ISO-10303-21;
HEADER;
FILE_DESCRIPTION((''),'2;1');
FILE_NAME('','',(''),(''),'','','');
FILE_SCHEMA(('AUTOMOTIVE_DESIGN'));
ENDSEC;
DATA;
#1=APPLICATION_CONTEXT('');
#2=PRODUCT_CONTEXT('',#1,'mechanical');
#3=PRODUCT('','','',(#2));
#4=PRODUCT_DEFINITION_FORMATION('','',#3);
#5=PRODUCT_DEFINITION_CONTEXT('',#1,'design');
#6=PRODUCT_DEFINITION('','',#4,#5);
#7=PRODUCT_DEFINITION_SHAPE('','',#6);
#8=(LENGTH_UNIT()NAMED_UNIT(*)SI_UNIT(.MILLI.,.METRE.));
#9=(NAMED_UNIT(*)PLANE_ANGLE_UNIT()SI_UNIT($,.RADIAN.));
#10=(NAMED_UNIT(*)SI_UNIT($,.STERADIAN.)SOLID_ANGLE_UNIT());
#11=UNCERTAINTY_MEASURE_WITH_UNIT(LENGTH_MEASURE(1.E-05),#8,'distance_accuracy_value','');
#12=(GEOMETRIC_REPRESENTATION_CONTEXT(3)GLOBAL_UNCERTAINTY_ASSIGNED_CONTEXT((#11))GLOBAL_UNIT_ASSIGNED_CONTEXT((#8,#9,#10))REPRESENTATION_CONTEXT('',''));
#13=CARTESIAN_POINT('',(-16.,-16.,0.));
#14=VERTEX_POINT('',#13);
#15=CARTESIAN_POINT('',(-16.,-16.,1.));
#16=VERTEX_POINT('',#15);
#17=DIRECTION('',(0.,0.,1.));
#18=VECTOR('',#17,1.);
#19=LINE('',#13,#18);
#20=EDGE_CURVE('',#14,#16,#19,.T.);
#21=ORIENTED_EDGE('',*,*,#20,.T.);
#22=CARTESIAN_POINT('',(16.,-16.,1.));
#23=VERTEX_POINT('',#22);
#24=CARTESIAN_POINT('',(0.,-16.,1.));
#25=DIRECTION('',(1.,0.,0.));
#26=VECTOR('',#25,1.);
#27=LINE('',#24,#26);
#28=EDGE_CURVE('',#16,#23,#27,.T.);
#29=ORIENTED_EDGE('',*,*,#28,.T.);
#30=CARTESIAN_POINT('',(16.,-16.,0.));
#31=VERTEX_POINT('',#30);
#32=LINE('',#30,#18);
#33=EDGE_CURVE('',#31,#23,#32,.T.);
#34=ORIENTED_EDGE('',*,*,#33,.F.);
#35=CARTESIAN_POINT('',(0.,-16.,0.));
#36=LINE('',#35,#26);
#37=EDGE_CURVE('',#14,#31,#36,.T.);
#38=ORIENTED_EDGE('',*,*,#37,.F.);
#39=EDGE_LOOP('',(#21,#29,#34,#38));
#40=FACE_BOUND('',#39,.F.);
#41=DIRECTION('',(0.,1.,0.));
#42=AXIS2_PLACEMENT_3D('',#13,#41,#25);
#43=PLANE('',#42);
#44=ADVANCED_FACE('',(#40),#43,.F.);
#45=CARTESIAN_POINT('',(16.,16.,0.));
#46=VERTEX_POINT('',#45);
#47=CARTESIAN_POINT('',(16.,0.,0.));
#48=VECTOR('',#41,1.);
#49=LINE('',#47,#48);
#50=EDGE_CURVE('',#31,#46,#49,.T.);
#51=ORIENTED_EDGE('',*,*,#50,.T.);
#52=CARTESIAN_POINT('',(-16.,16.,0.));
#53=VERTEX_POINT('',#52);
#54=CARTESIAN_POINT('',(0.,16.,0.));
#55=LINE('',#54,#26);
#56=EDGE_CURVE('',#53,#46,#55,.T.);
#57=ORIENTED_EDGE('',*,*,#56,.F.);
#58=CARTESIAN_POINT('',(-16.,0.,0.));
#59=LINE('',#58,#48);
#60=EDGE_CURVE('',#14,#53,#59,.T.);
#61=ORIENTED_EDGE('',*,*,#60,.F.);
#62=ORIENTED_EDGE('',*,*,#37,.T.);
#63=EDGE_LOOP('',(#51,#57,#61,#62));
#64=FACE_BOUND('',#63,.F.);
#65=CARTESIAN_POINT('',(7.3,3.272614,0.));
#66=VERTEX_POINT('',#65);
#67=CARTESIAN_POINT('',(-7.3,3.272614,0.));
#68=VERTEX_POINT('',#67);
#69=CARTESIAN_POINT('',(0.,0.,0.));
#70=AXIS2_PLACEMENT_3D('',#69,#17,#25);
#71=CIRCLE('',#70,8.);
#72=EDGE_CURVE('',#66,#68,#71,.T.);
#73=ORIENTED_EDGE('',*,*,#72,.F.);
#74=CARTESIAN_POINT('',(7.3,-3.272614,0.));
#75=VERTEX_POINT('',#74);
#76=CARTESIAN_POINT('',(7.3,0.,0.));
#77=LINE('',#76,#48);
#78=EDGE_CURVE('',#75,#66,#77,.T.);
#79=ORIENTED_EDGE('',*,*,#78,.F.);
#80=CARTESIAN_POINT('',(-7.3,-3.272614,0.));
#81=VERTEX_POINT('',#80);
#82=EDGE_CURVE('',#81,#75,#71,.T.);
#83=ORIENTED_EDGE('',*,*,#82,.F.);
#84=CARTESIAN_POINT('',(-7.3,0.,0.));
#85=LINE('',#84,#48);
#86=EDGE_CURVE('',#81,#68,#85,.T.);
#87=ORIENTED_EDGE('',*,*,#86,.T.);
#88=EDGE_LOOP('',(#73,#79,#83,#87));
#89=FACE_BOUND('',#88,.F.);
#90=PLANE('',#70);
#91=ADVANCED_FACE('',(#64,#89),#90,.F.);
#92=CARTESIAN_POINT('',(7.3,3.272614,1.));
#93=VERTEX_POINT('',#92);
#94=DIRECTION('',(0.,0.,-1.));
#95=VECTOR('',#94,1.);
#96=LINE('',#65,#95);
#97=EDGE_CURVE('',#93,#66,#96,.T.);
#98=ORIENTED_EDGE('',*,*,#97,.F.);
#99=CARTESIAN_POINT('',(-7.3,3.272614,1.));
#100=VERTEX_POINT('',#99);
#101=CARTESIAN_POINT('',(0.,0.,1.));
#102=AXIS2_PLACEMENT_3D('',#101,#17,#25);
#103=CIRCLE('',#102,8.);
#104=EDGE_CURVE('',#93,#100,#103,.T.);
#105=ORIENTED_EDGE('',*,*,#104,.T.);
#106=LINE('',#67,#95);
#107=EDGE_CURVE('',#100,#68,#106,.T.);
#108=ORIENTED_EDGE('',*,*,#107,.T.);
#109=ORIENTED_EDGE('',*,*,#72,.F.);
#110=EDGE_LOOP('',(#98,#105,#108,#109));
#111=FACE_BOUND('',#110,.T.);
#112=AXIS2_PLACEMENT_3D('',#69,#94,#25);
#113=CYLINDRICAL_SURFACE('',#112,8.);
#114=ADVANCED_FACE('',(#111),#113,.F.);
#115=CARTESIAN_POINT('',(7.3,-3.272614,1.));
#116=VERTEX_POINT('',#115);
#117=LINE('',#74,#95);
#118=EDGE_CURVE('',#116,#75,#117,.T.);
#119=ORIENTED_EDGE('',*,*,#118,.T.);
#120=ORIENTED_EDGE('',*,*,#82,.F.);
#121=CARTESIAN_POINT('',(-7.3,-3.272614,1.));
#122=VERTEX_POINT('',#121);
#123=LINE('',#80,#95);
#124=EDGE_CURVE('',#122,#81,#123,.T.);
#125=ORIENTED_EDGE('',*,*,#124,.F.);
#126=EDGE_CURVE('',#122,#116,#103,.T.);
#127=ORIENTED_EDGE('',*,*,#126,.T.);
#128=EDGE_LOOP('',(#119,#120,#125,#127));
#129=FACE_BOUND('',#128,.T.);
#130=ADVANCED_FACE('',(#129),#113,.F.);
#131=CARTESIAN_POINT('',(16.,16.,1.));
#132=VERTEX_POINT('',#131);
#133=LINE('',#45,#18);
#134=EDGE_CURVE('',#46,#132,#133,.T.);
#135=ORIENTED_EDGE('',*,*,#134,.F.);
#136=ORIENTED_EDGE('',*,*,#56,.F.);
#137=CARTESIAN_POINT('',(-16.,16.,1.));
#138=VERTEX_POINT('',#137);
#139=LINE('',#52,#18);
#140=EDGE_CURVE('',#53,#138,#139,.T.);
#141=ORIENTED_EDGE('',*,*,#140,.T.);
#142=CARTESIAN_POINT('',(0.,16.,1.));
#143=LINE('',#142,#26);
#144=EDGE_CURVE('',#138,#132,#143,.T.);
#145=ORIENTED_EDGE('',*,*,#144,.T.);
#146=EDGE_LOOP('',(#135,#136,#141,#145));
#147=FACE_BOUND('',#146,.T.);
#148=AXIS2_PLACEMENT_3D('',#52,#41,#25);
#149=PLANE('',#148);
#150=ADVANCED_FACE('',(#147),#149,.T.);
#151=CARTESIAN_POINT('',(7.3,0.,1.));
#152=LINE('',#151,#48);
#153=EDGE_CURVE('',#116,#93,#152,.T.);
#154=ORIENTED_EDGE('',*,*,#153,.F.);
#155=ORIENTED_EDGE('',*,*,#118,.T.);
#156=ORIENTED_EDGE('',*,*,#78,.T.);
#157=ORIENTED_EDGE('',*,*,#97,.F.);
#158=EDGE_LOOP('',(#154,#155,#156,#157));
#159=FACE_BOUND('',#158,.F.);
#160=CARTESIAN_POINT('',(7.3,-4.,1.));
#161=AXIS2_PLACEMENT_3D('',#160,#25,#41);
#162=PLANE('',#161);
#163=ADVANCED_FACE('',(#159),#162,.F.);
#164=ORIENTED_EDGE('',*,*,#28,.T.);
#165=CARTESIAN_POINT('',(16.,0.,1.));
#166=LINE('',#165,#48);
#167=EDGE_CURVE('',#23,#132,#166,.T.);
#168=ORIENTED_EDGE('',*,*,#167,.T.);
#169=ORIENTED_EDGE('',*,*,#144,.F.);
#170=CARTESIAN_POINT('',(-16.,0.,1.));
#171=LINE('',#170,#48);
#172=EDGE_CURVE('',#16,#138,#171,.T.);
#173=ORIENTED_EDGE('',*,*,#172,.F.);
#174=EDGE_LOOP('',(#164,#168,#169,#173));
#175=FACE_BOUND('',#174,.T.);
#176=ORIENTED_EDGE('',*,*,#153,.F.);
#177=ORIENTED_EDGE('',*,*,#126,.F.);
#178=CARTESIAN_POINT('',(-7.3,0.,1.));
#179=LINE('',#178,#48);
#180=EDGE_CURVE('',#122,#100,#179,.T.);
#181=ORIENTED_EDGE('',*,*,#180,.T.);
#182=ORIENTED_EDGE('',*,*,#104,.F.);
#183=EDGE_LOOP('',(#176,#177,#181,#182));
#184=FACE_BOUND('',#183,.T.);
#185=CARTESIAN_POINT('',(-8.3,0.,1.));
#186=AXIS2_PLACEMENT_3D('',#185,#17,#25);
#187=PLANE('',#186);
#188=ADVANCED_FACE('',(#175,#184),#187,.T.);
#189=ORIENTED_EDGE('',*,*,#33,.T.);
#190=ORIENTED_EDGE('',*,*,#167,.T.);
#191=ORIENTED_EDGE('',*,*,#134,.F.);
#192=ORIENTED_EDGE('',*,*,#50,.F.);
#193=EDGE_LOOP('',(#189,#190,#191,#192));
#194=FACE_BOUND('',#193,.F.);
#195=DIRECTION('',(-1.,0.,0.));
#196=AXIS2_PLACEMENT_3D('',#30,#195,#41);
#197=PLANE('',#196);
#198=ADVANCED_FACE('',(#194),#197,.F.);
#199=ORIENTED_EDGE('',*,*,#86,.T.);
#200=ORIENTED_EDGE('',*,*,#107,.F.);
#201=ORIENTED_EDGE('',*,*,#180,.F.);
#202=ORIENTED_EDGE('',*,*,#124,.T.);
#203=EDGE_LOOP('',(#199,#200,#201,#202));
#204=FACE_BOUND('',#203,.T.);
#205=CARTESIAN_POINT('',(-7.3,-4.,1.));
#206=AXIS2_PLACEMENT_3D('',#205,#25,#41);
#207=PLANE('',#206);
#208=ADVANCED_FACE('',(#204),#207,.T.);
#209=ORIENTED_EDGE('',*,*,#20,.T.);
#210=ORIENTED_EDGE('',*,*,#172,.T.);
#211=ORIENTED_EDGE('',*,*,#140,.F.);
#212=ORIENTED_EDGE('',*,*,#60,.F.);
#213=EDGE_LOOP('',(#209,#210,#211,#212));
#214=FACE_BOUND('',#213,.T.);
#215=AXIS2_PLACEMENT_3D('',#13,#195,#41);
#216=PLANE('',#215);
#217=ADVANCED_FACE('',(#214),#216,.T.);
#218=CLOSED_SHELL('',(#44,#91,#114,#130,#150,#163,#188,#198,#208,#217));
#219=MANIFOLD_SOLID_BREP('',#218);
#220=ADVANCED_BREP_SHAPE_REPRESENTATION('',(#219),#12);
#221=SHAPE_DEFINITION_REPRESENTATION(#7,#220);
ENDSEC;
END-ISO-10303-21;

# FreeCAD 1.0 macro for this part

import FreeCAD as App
import Part
import Sketcher

V = App.Vector
Q = App.Units.Quantity

doc = App.newDocument("Part")
params = doc.addObject("Spreadsheet::Sheet", "Params")
for row, (alias, value) in enumerate([
    ("sketch1_diameter", "16 mm"),
    ("sketch1_width", "32 mm"),
    ("pad1_length", "1 mm"),
    ("sketch2_width", "2 mm"),
    ("sketch2_height", "8 mm"),
    ("pad2_length", "1 mm"),
], start=1):
    params.set(f"A{row}", alias)
    params.set(f"B{row}", "=" + value)
    params.setAlias(f"B{row}", alias)

body = doc.addObject("PartDesign::Body", "Body")

# Sketch on XY plane
sketch1 = body.newObject("Sketcher::SketchObject", "Sketch")
sketch1.AttachmentSupport = (doc.getObject("XY_Plane"), [""])
sketch1.MapMode = "FlatFace"
sketch1.addGeometry([
    Part.LineSegment(V(-16, 16, 0), V(-16, -16, 0)),  # 0
    Part.LineSegment(V(-16, -16, 0), V(16, -16, 0)),  # 1
    Part.LineSegment(V(16, -16, 0), V(16, 16, 0)),  # 2
    Part.LineSegment(V(16, 16, 0), V(-16, 16, 0)),  # 3
    Part.Circle(V(0, 0, 0), V(0, 0, 1), 8),  # 4
], False)
sketch1.addConstraint([
    Sketcher.Constraint("Coincident", 0, 2, 1, 1),
    Sketcher.Constraint("Coincident", 1, 2, 2, 1),
    Sketcher.Constraint("Coincident", 2, 2, 3, 1),
    Sketcher.Constraint("Coincident", 3, 2, 0, 1),
    Sketcher.Constraint("Vertical", 0),
    Sketcher.Constraint("Horizontal", 1),
    Sketcher.Constraint("Vertical", 2),
    Sketcher.Constraint("Horizontal", 3),
    Sketcher.Constraint("Coincident", 4, 3, -1, 1),
    Sketcher.Constraint("Symmetric", 0, 2, 2, 2, -1, 1),
    Sketcher.Constraint("Equal", 3, 0),
    Sketcher.Constraint("Diameter", 4, Q("16 mm")),
    Sketcher.Constraint("DistanceX", 1, 1, 1, 2, Q("32 mm")),
])
sketch1.setExpression("Constraints[11]", "Params.sketch1_diameter")
sketch1.setExpression("Constraints[12]", "Params.sketch1_width")
pad1 = body.newObject("PartDesign::Pad", "Pad")
pad1.Profile = sketch1
pad1.setExpression("Length", "Params.pad1_length")

# Sketch on XY plane
sketch2 = body.newObject("Sketcher::SketchObject", "Sketch001")
sketch2.AttachmentSupport = (doc.getObject("XY_Plane"), [""])
sketch2.MapMode = "FlatFace"
sketch2.AttachmentOffset = App.Placement(V(0, 0, 1), App.Rotation())
sketch2.addGeometry([
    Part.LineSegment(V(-9.3, 4, 0), V(-9.3, -4, 0)),  # 0
    Part.LineSegment(V(-9.3, -4, 0), V(-7.3, -4, 0)),  # 1
    Part.LineSegment(V(-7.3, -4, 0), V(-7.3, 4, 0)),  # 2
    Part.LineSegment(V(-7.3, 4, 0), V(-9.3, 4, 0)),  # 3
    Part.LineSegment(V(7.3, 4, 0), V(7.3, -4, 0)),  # 4
    Part.LineSegment(V(7.3, -4, 0), V(9.3, -4, 0)),  # 5
    Part.LineSegment(V(9.3, -4, 0), V(9.3, 4, 0)),  # 6
    Part.LineSegment(V(9.3, 4, 0), V(7.3, 4, 0)),  # 7
], False)
sketch2.addConstraint([
    Sketcher.Constraint("Coincident", 0, 2, 1, 1),
    Sketcher.Constraint("Coincident", 1, 2, 2, 1),
    Sketcher.Constraint("Coincident", 2, 2, 3, 1),
    Sketcher.Constraint("Coincident", 3, 2, 0, 1),
    Sketcher.Constraint("Coincident", 4, 2, 5, 1),
    Sketcher.Constraint("Coincident", 5, 2, 6, 1),
    Sketcher.Constraint("Coincident", 6, 2, 7, 1),
    Sketcher.Constraint("Coincident", 7, 2, 4, 1),
    Sketcher.Constraint("Vertical", 0),
    Sketcher.Constraint("Horizontal", 1),
    Sketcher.Constraint("Vertical", 2),
    Sketcher.Constraint("Horizontal", 3),
    Sketcher.Constraint("Vertical", 4),
    Sketcher.Constraint("Horizontal", 5),
    Sketcher.Constraint("Vertical", 6),
    Sketcher.Constraint("Horizontal", 7),
    Sketcher.Constraint("Symmetric", 2, 2, 4, 2, -1, 1),
    Sketcher.Constraint("Symmetric", 0, 2, 6, 2, -1, 1),
    Sketcher.Constraint("Horizontal", 1, 2, 4, 2),
    Sketcher.Constraint("DistanceX", 1, 1, 1, 2, Q("2 mm")),
    Sketcher.Constraint("DistanceY", 0, 2, 0, 1, Q("8 mm")),
    Sketcher.Constraint("DistanceX", 0, 2, -1, 1, Q("9.3 mm")),
])
sketch2.setExpression("Constraints[19]", "Params.sketch2_width")
sketch2.setExpression("Constraints[20]", "Params.sketch2_height")
pad2 = body.newObject("PartDesign::Pad", "Pad001")
pad2.Profile = sketch2
pad2.setExpression("Length", "Params.pad2_length")
pad2.Reversed = True

doc.recompute()
